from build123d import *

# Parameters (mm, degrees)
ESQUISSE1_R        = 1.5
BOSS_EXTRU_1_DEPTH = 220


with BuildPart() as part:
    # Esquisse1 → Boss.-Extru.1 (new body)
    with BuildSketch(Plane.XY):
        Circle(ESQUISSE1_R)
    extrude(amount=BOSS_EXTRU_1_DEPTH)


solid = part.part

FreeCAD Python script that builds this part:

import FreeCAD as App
import Part
import Sketcher
Q = App.Units.Quantity

doc = App.newDocument("Part")
body = doc.addObject("PartDesign::Body", "Body")

# Sketch on XY plane
sketch1 = doc.addObject("Sketcher::SketchObject", "Sketch")
body.addObject(sketch1)
sketch1.AttachmentSupport = (doc.XY_Plane, [""])
sketch1.MapMode = "FlatFace"
sketch1.addGeometry(Part.Circle(App.Vector(0, 0, 0), App.Vector(0, 0, 1), 1.5), False)
sketch1.addConstraint([
    Sketcher.Constraint("Coincident", 0, 3, -1, 1),
    Sketcher.Constraint("Diameter", 0, Q("3 mm")),
])
pad1 = doc.addObject("PartDesign::Pad", "Pad")
body.addObject(pad1)
pad1.Profile = sketch1
pad1.Length = 220

doc.recompute()
